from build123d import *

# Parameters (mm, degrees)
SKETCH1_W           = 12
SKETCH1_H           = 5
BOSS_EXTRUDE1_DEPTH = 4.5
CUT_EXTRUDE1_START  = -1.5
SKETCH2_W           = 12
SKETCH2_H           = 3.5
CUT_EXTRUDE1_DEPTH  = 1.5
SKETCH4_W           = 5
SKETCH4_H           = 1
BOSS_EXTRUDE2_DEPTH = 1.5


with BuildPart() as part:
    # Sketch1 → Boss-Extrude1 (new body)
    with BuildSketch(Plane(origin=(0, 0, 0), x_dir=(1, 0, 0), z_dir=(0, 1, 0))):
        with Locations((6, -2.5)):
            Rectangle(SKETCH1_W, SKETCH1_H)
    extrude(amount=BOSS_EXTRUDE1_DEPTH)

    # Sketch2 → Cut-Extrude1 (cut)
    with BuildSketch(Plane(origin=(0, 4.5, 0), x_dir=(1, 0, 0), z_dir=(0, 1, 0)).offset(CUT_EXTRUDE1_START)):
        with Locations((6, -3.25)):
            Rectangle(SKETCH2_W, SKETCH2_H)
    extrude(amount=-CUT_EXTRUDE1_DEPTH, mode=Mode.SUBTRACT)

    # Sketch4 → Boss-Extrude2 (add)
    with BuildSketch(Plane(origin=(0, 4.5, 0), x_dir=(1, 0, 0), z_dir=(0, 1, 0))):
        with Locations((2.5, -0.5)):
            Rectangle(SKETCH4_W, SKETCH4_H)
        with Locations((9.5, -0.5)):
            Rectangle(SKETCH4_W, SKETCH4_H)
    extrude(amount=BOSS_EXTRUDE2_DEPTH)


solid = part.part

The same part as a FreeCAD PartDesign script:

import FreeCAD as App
import Part
import Sketcher

V = App.Vector

doc = App.newDocument("Part")
body = doc.addObject("PartDesign::Body", "Body")

# Sketch on XZ plane
sketch1 = body.newObject("Sketcher::SketchObject", "Sketch")
sketch1.AttachmentSupport = (doc.getObject("XZ_Plane"), [""])
sketch1.MapMode = "FlatFace"
sketch1.addGeometry([
    Part.LineSegment(V(0, 0, 0), V(0, 5, 0)),
    Part.LineSegment(V(0, 5, 0), V(12, 5, 0)),
    Part.LineSegment(V(12, 5, 0), V(12, 0, 0)),
    Part.LineSegment(V(12, 0, 0), V(0, 0, 0)),
], False)
sketch1.addConstraint([
    Sketcher.Constraint("Coincident", 0, 2, 1, 1),
    Sketcher.Constraint("Coincident", 1, 2, 2, 1),
    Sketcher.Constraint("Coincident", 2, 2, 3, 1),
    Sketcher.Constraint("Coincident", 3, 2, 0, 1),
    Sketcher.Constraint("Vertical", 0),
    Sketcher.Constraint("Horizontal", 1),
    Sketcher.Constraint("Vertical", 2),
    Sketcher.Constraint("Horizontal", 3),
    Sketcher.Constraint("Coincident", 3, 2, -1, 1),
    Sketcher.Constraint("DistanceX", 1, 1, 1, 2, 12.0),
    Sketcher.Constraint("DistanceY", 0, 1, 0, 2, 5.0),
])
pad1 = body.newObject("PartDesign::Pad", "Pad")
pad1.Profile = sketch1
pad1.Length = 4.5
pad1.Reversed = True

# Sketch on XZ plane
sketch2 = body.newObject("Sketcher::SketchObject", "Sketch001")
sketch2.AttachmentSupport = (doc.getObject("XZ_Plane"), [""])
sketch2.MapMode = "FlatFace"
sketch2.AttachmentOffset = App.Placement(V(0, 0, -3), App.Rotation())
sketch2.addGeometry([
    Part.LineSegment(V(0, 1.5, 0), V(0, 5, 0)),
    Part.LineSegment(V(0, 5, 0), V(12, 5, 0)),
    Part.LineSegment(V(12, 5, 0), V(12, 1.5, 0)),
    Part.LineSegment(V(12, 1.5, 0), V(0, 1.5, 0)),
], False)
sketch2.addConstraint([
    Sketcher.Constraint("Coincident", 0, 2, 1, 1),
    Sketcher.Constraint("Coincident", 1, 2, 2, 1),
    Sketcher.Constraint("Coincident", 2, 2, 3, 1),
    Sketcher.Constraint("Coincident", 3, 2, 0, 1),
    Sketcher.Constraint("Vertical", 0),
    Sketcher.Constraint("Horizontal", 1),
    Sketcher.Constraint("Vertical", 2),
    Sketcher.Constraint("Horizontal", 3),
    Sketcher.Constraint("PointOnObject", 0, 2, -2),
    Sketcher.Constraint("DistanceX", 1, 1, 1, 2, 12.0),
    Sketcher.Constraint("DistanceY", 0, 1, 0, 2, 3.5),
    Sketcher.Constraint("DistanceY", -1, 1, 0, 2, 5.0),
])
pocket1 = body.newObject("PartDesign::Pocket", "Pocket")
pocket1.Profile = sketch2
pocket1.Length = 1.5
pocket1.Reversed = True

# Sketch on XZ plane
sketch3 = body.newObject("Sketcher::SketchObject", "Sketch002")
sketch3.AttachmentSupport = (doc.getObject("XZ_Plane"), [""])
sketch3.MapMode = "FlatFace"
sketch3.AttachmentOffset = App.Placement(V(0, 0, -4.5), App.Rotation())
sketch3.addGeometry([
    Part.LineSegment(V(0, 0, 0), V(0, 1, 0)),  # 0
    Part.LineSegment(V(0, 1, 0), V(5, 1, 0)),  # 1
    Part.LineSegment(V(5, 1, 0), V(5, 0, 0)),  # 2
    Part.LineSegment(V(5, 0, 0), V(0, 0, 0)),  # 3
    Part.LineSegment(V(7, 0, 0), V(7, 1, 0)),  # 4
    Part.LineSegment(V(7, 1, 0), V(12, 1, 0)),  # 5
    Part.LineSegment(V(12, 1, 0), V(12, 0, 0)),  # 6
    Part.LineSegment(V(12, 0, 0), V(7, 0, 0)),  # 7
], False)
sketch3.addConstraint([
    Sketcher.Constraint("Coincident", 0, 2, 1, 1),
    Sketcher.Constraint("Coincident", 1, 2, 2, 1),
    Sketcher.Constraint("Coincident", 2, 2, 3, 1),
    Sketcher.Constraint("Coincident", 3, 2, 0, 1),
    Sketcher.Constraint("Coincident", 4, 2, 5, 1),
    Sketcher.Constraint("Coincident", 5, 2, 6, 1),
    Sketcher.Constraint("Coincident", 6, 2, 7, 1),
    Sketcher.Constraint("Coincident", 7, 2, 4, 1),
    Sketcher.Constraint("Vertical", 0),
    Sketcher.Constraint("Horizontal", 1),
    Sketcher.Constraint("Vertical", 2),
    Sketcher.Constraint("Horizontal", 3),
    Sketcher.Constraint("Vertical", 4),
    Sketcher.Constraint("Horizontal", 5),
    Sketcher.Constraint("Vertical", 6),
    Sketcher.Constraint("Horizontal", 7),
    Sketcher.Constraint("Coincident", 3, 2, -1, 1),
    Sketcher.Constraint("PointOnObject", 6, 2, -1),
    Sketcher.Constraint("Horizontal", 1, 2, 4, 2),
    Sketcher.Constraint("Equal", 3, 5),
    Sketcher.Constraint("DistanceX", 1, 1, 1, 2, 5.0),
    Sketcher.Constraint("DistanceY", 0, 1, 0, 2, 1.0),
    Sketcher.Constraint("DistanceX", -1, 1, 4, 2, 7.0),
])
pad2 = body.newObject("PartDesign::Pad", "Pad001")
pad2.Profile = sketch3
pad2.Length = 1.5
pad2.Reversed = True

doc.recompute()
